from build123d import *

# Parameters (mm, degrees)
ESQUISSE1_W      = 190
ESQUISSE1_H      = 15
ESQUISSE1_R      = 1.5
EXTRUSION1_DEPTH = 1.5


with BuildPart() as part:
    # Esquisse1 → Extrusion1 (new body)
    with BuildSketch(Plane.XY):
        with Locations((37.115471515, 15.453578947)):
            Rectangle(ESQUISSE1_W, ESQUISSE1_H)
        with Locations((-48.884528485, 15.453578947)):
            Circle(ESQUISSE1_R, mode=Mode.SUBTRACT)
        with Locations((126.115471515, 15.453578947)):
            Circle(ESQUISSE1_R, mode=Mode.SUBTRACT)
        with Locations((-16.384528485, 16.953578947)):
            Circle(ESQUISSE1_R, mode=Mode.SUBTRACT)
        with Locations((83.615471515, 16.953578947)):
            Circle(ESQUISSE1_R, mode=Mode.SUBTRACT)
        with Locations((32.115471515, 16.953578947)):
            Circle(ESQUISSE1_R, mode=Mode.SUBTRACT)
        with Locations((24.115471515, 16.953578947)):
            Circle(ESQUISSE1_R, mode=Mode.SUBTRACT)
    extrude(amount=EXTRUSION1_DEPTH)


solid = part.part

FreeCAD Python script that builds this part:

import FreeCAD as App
import Part
import Sketcher

V = App.Vector
Q = App.Units.Quantity


def add_polygon(sketch, points):
    """Adds a closed chain of lines whose ends are joined by coincident constraints."""
    first, n = sketch.GeometryCount, len(points)
    for a, b in zip(points, points[1:] + points[:1]):
        sketch.addGeometry(Part.LineSegment(App.Vector(*a, 0), App.Vector(*b, 0)), False)
    for i in range(n):
        sketch.addConstraint(Sketcher.Constraint("Coincident", first + i, 2, first + (i + 1) % n, 1))

doc = App.newDocument("Part")
body = doc.addObject("PartDesign::Body", "Body")

# Sketch on XY plane
sketch1 = doc.addObject("Sketcher::SketchObject", "Sketch")
body.addObject(sketch1)
sketch1.AttachmentSupport = (doc.XY_Plane, [""])
sketch1.MapMode = "FlatFace"
add_polygon(sketch1, [(-57.9, 23), (-57.9, 8), (132.1, 8), (132.1, 23)])  # lines 0-3
sketch1.addGeometry(Part.Circle(V(-48.9, 15.5, 0), V(0, 0, 1), 1.5), False)  # 4
sketch1.addGeometry(Part.Circle(V(126.1, 15.5, 0), V(0, 0, 1), 1.5), False)  # 5
sketch1.addGeometry(Part.Circle(V(-16.4, 17, 0), V(0, 0, 1), 1.5), False)  # 6
sketch1.addGeometry(Part.Circle(V(24.1, 17, 0), V(0, 0, 1), 1.5), False)  # 7
sketch1.addGeometry(Part.Circle(V(32.1, 17, 0), V(0, 0, 1), 1.5), False)  # 8
sketch1.addGeometry(Part.Circle(V(83.6, 17, 0), V(0, 0, 1), 1.5), False)  # 9
sketch1.addConstraint(Sketcher.Constraint("Vertical", 0))
sketch1.addConstraint(Sketcher.Constraint("Horizontal", 1))
sketch1.addConstraint(Sketcher.Constraint("Vertical", 2))
sketch1.addConstraint(Sketcher.Constraint("Horizontal", 3))
sketch1.addConstraint(Sketcher.Constraint("Equal", 4, 5))
sketch1.addConstraint(Sketcher.Constraint("Equal", 5, 6))
sketch1.addConstraint(Sketcher.Constraint("Equal", 6, 7))
sketch1.addConstraint(Sketcher.Constraint("Equal", 7, 8))
sketch1.addConstraint(Sketcher.Constraint("Equal", 8, 9))
sketch1.addConstraint(Sketcher.Constraint("Horizontal", 4, 3, 5, 3))
sketch1.addConstraint(Sketcher.Constraint("Horizontal", 6, 3, 7, 3))
sketch1.addConstraint(Sketcher.Constraint("Horizontal", 7, 3, 8, 3))
sketch1.addConstraint(Sketcher.Constraint("Horizontal", 8, 3, 9, 3))
sketch1.addConstraint(Sketcher.Constraint("Diameter", 4, Q("3 mm")))
sketch1.addConstraint(Sketcher.Constraint("DistanceX", 1, 1, 1, 2, Q("190 mm")))
sketch1.addConstraint(Sketcher.Constraint("DistanceY", 0, 2, 0, 1, Q("15 mm")))
sketch1.addConstraint(Sketcher.Constraint("DistanceX", 4, 3, 5, 3, Q("175 mm")))
sketch1.addConstraint(Sketcher.Constraint("DistanceX", 4, 3, 7, 3, Q("73 mm")))
sketch1.addConstraint(Sketcher.Constraint("DistanceX", 7, 3, 8, 3, Q("8 mm")))
sketch1.addConstraint(Sketcher.Constraint("DistanceX", 6, 3, 9, 3, Q("100 mm")))
sketch1.addConstraint(Sketcher.Constraint("DistanceX", 0, 2, 4, 3, Q("9 mm")))
sketch1.addConstraint(Sketcher.Constraint("DistanceY", 0, 2, 6, 3, Q("9 mm")))
sketch1.addConstraint(Sketcher.Constraint("DistanceX", 4, 3, 6, 3, Q("32.5 mm")))
sketch1.addConstraint(Sketcher.Constraint("DistanceY", 4, 3, 6, 3, Q("1.5 mm")))
sketch1.addConstraint(Sketcher.Constraint("DistanceX", 4, 3, -1, 1, Q("48.884528 mm")))
sketch1.addConstraint(Sketcher.Constraint("DistanceY", -1, 1, 4, 3, Q("15.453579 mm")))
pad1 = doc.addObject("PartDesign::Pad", "Pad")
body.addObject(pad1)
pad1.Profile = sketch1
pad1.Length = 1.5

doc.recompute()
